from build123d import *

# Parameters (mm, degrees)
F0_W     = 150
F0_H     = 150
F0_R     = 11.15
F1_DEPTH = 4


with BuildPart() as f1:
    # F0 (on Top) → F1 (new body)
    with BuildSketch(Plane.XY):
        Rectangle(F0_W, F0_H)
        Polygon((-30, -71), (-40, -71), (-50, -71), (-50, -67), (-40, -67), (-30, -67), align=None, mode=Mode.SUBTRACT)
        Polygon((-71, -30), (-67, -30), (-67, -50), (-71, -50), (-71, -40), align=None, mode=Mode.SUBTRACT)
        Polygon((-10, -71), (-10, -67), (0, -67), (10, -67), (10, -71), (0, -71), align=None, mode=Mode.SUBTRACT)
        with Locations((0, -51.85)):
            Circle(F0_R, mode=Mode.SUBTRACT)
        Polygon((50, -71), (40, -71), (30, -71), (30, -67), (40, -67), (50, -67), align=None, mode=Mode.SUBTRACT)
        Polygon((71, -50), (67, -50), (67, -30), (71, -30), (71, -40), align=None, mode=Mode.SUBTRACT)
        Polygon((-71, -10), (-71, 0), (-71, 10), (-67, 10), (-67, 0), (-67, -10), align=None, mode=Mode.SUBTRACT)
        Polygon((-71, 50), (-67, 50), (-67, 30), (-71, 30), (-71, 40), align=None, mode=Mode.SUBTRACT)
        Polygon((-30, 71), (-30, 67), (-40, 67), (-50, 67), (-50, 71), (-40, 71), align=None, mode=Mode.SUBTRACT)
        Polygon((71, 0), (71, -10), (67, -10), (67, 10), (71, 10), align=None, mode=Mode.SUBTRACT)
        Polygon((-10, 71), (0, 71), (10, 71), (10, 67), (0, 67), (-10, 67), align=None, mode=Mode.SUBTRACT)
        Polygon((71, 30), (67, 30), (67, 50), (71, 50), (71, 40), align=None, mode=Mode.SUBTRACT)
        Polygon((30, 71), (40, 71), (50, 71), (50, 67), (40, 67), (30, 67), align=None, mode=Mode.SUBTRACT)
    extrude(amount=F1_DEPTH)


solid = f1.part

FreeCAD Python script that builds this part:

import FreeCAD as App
import Part
import Sketcher
from FreeCAD import Vector

doc = App.newDocument("Part")
body = doc.addObject("PartDesign::Body", "Body")

# Sketch on XY plane
sketch1 = body.newObject("Sketcher::SketchObject", "Sketch")
sketch1.AttachmentSupport = (doc.getObject("XY_Plane"), [""])
sketch1.MapMode = "FlatFace"
sketch1.addGeometry(Part.LineSegment(Vector(-75, 75, 0), Vector(-75, -75, 0)), False)
sketch1.addGeometry(Part.LineSegment(Vector(-75, -75, 0), Vector(75, -75, 0)), False)
sketch1.addGeometry(Part.LineSegment(Vector(75, -75, 0), Vector(75, 75, 0)), False)
sketch1.addGeometry(Part.LineSegment(Vector(75, 75, 0), Vector(-75, 75, 0)), False)
sketch1.addGeometry(Part.LineSegment(Vector(-30, -67, 0), Vector(-30, -71, 0)), False)
sketch1.addGeometry(Part.LineSegment(Vector(-30, -71, 0), Vector(-50, -71, 0)), False)
sketch1.addGeometry(Part.LineSegment(Vector(-50, -71, 0), Vector(-50, -67, 0)), False)
sketch1.addGeometry(Part.LineSegment(Vector(-50, -67, 0), Vector(-30, -67, 0)), False)
sketch1.addGeometry(Part.LineSegment(Vector(-71, -50, 0), Vector(-71, -30, 0)), False)
sketch1.addGeometry(Part.LineSegment(Vector(-71, -30, 0), Vector(-67, -30, 0)), False)
sketch1.addGeometry(Part.LineSegment(Vector(-67, -30, 0), Vector(-67, -50, 0)), False)
sketch1.addGeometry(Part.LineSegment(Vector(-67, -50, 0), Vector(-71, -50, 0)), False)
sketch1.addGeometry(Part.LineSegment(Vector(10, -71, 0), Vector(-10, -71, 0)), False)
sketch1.addGeometry(Part.LineSegment(Vector(-10, -71, 0), Vector(-10, -67, 0)), False)
sketch1.addGeometry(Part.LineSegment(Vector(-10, -67, 0), Vector(10, -67, 0)), False)
sketch1.addGeometry(Part.LineSegment(Vector(10, -67, 0), Vector(10, -71, 0)), False)
sketch1.addGeometry(Part.Circle(Vector(0, -51.9, 0), Vector(0, 0, 1), 11.2), False)
sketch1.addGeometry(Part.LineSegment(Vector(50, -67, 0), Vector(50, -71, 0)), False)
sketch1.addGeometry(Part.LineSegment(Vector(50, -71, 0), Vector(30, -71, 0)), False)
sketch1.addGeometry(Part.LineSegment(Vector(30, -71, 0), Vector(30, -67, 0)), False)
sketch1.addGeometry(Part.LineSegment(Vector(30, -67, 0), Vector(50, -67, 0)), False)
sketch1.addGeometry(Part.LineSegment(Vector(71, -30, 0), Vector(71, -50, 0)), False)
sketch1.addGeometry(Part.LineSegment(Vector(71, -50, 0), Vector(67, -50, 0)), False)
sketch1.addGeometry(Part.LineSegment(Vector(67, -50, 0), Vector(67, -30, 0)), False)
sketch1.addGeometry(Part.LineSegment(Vector(67, -30, 0), Vector(71, -30, 0)), False)
sketch1.addGeometry(Part.LineSegment(Vector(-67, -10, 0), Vector(-71, -10, 0)), False)
sketch1.addGeometry(Part.LineSegment(Vector(-71, -10, 0), Vector(-71, 10, 0)), False)
sketch1.addGeometry(Part.LineSegment(Vector(-71, 10, 0), Vector(-67, 10, 0)), False)
sketch1.addGeometry(Part.LineSegment(Vector(-67, 10, 0), Vector(-67, -10, 0)), False)
sketch1.addGeometry(Part.LineSegment(Vector(-71, 30, 0), Vector(-71, 50, 0)), False)
sketch1.addGeometry(Part.LineSegment(Vector(-71, 50, 0), Vector(-67, 50, 0)), False)
sketch1.addGeometry(Part.LineSegment(Vector(-67, 50, 0), Vector(-67, 30, 0)), False)
sketch1.addGeometry(Part.LineSegment(Vector(-67, 30, 0), Vector(-71, 30, 0)), False)
sketch1.addGeometry(Part.LineSegment(Vector(-50, 71, 0), Vector(-30, 71, 0)), False)
sketch1.addGeometry(Part.LineSegment(Vector(-30, 71, 0), Vector(-30, 67, 0)), False)
sketch1.addGeometry(Part.LineSegment(Vector(-30, 67, 0), Vector(-50, 67, 0)), False)
sketch1.addGeometry(Part.LineSegment(Vector(-50, 67, 0), Vector(-50, 71, 0)), False)
sketch1.addGeometry(Part.LineSegment(Vector(71, 10, 0), Vector(71, -10, 0)), False)
sketch1.addGeometry(Part.LineSegment(Vector(71, -10, 0), Vector(67, -10, 0)), False)
sketch1.addGeometry(Part.LineSegment(Vector(67, -10, 0), Vector(67, 10, 0)), False)
sketch1.addGeometry(Part.LineSegment(Vector(67, 10, 0), Vector(71, 10, 0)), False)
sketch1.addGeometry(Part.LineSegment(Vector(-10, 67, 0), Vector(-10, 71, 0)), False)
sketch1.addGeometry(Part.LineSegment(Vector(-10, 71, 0), Vector(10, 71, 0)), False)
sketch1.addGeometry(Part.LineSegment(Vector(10, 71, 0), Vector(10, 67, 0)), False)
sketch1.addGeometry(Part.LineSegment(Vector(10, 67, 0), Vector(-10, 67, 0)), False)
sketch1.addGeometry(Part.LineSegment(Vector(71, 50, 0), Vector(71, 30, 0)), False)
sketch1.addGeometry(Part.LineSegment(Vector(71, 30, 0), Vector(67, 30, 0)), False)
sketch1.addGeometry(Part.LineSegment(Vector(67, 30, 0), Vector(67, 50, 0)), False)
sketch1.addGeometry(Part.LineSegment(Vector(67, 50, 0), Vector(71, 50, 0)), False)
sketch1.addGeometry(Part.LineSegment(Vector(30, 67, 0), Vector(30, 71, 0)), False)
sketch1.addGeometry(Part.LineSegment(Vector(30, 71, 0), Vector(50, 71, 0)), False)
sketch1.addGeometry(Part.LineSegment(Vector(50, 71, 0), Vector(50, 67, 0)), False)
sketch1.addGeometry(Part.LineSegment(Vector(50, 67, 0), Vector(30, 67, 0)), False)
sketch1.addConstraint(Sketcher.Constraint("Coincident", 0, 2, 1, 1))
sketch1.addConstraint(Sketcher.Constraint("Coincident", 1, 2, 2, 1))
sketch1.addConstraint(Sketcher.Constraint("Coincident", 2, 2, 3, 1))
sketch1.addConstraint(Sketcher.Constraint("Coincident", 3, 2, 0, 1))
sketch1.addConstraint(Sketcher.Constraint("Coincident", 4, 2, 5, 1))
sketch1.addConstraint(Sketcher.Constraint("Coincident", 5, 2, 6, 1))
sketch1.addConstraint(Sketcher.Constraint("Coincident", 6, 2, 7, 1))
sketch1.addConstraint(Sketcher.Constraint("Coincident", 7, 2, 4, 1))
sketch1.addConstraint(Sketcher.Constraint("Coincident", 8, 2, 9, 1))
sketch1.addConstraint(Sketcher.Constraint("Coincident", 9, 2, 10, 1))
sketch1.addConstraint(Sketcher.Constraint("Coincident", 10, 2, 11, 1))
sketch1.addConstraint(Sketcher.Constraint("Coincident", 11, 2, 8, 1))
sketch1.addConstraint(Sketcher.Constraint("Coincident", 12, 2, 13, 1))
sketch1.addConstraint(Sketcher.Constraint("Coincident", 13, 2, 14, 1))
sketch1.addConstraint(Sketcher.Constraint("Coincident", 14, 2, 15, 1))
sketch1.addConstraint(Sketcher.Constraint("Coincident", 15, 2, 12, 1))
sketch1.addConstraint(Sketcher.Constraint("Coincident", 17, 2, 18, 1))
sketch1.addConstraint(Sketcher.Constraint("Coincident", 18, 2, 19, 1))
sketch1.addConstraint(Sketcher.Constraint("Coincident", 19, 2, 20, 1))
sketch1.addConstraint(Sketcher.Constraint("Coincident", 20, 2, 17, 1))
sketch1.addConstraint(Sketcher.Constraint("Coincident", 21, 2, 22, 1))
sketch1.addConstraint(Sketcher.Constraint("Coincident", 22, 2, 23, 1))
sketch1.addConstraint(Sketcher.Constraint("Coincident", 23, 2, 24, 1))
sketch1.addConstraint(Sketcher.Constraint("Coincident", 24, 2, 21, 1))
sketch1.addConstraint(Sketcher.Constraint("Coincident", 25, 2, 26, 1))
sketch1.addConstraint(Sketcher.Constraint("Coincident", 26, 2, 27, 1))
sketch1.addConstraint(Sketcher.Constraint("Coincident", 27, 2, 28, 1))
sketch1.addConstraint(Sketcher.Constraint("Coincident", 28, 2, 25, 1))
sketch1.addConstraint(Sketcher.Constraint("Coincident", 29, 2, 30, 1))
sketch1.addConstraint(Sketcher.Constraint("Coincident", 30, 2, 31, 1))
sketch1.addConstraint(Sketcher.Constraint("Coincident", 31, 2, 32, 1))
sketch1.addConstraint(Sketcher.Constraint("Coincident", 32, 2, 29, 1))
sketch1.addConstraint(Sketcher.Constraint("Coincident", 33, 2, 34, 1))
sketch1.addConstraint(Sketcher.Constraint("Coincident", 34, 2, 35, 1))
sketch1.addConstraint(Sketcher.Constraint("Coincident", 35, 2, 36, 1))
sketch1.addConstraint(Sketcher.Constraint("Coincident", 36, 2, 33, 1))
sketch1.addConstraint(Sketcher.Constraint("Coincident", 37, 2, 38, 1))
sketch1.addConstraint(Sketcher.Constraint("Coincident", 38, 2, 39, 1))
sketch1.addConstraint(Sketcher.Constraint("Coincident", 39, 2, 40, 1))
sketch1.addConstraint(Sketcher.Constraint("Coincident", 40, 2, 37, 1))
sketch1.addConstraint(Sketcher.Constraint("Coincident", 41, 2, 42, 1))
sketch1.addConstraint(Sketcher.Constraint("Coincident", 42, 2, 43, 1))
sketch1.addConstraint(Sketcher.Constraint("Coincident", 43, 2, 44, 1))
sketch1.addConstraint(Sketcher.Constraint("Coincident", 44, 2, 41, 1))
sketch1.addConstraint(Sketcher.Constraint("Coincident", 45, 2, 46, 1))
sketch1.addConstraint(Sketcher.Constraint("Coincident", 46, 2, 47, 1))
sketch1.addConstraint(Sketcher.Constraint("Coincident", 47, 2, 48, 1))
sketch1.addConstraint(Sketcher.Constraint("Coincident", 48, 2, 45, 1))
sketch1.addConstraint(Sketcher.Constraint("Coincident", 49, 2, 50, 1))
sketch1.addConstraint(Sketcher.Constraint("Coincident", 50, 2, 51, 1))
sketch1.addConstraint(Sketcher.Constraint("Coincident", 51, 2, 52, 1))
sketch1.addConstraint(Sketcher.Constraint("Coincident", 52, 2, 49, 1))
sketch1.addConstraint(Sketcher.Constraint("Vertical", 0))
sketch1.addConstraint(Sketcher.Constraint("Horizontal", 1))
sketch1.addConstraint(Sketcher.Constraint("Vertical", 2))
sketch1.addConstraint(Sketcher.Constraint("Horizontal", 3))
sketch1.addConstraint(Sketcher.Constraint("Vertical", 4))
sketch1.addConstraint(Sketcher.Constraint("Horizontal", 5))
sketch1.addConstraint(Sketcher.Constraint("Vertical", 6))
sketch1.addConstraint(Sketcher.Constraint("Horizontal", 7))
sketch1.addConstraint(Sketcher.Constraint("Vertical", 8))
sketch1.addConstraint(Sketcher.Constraint("Horizontal", 9))
sketch1.addConstraint(Sketcher.Constraint("Vertical", 10))
sketch1.addConstraint(Sketcher.Constraint("Horizontal", 11))
sketch1.addConstraint(Sketcher.Constraint("Horizontal", 12))
sketch1.addConstraint(Sketcher.Constraint("Vertical", 13))
sketch1.addConstraint(Sketcher.Constraint("Horizontal", 14))
sketch1.addConstraint(Sketcher.Constraint("Vertical", 15))
sketch1.addConstraint(Sketcher.Constraint("Vertical", 17))
sketch1.addConstraint(Sketcher.Constraint("Horizontal", 18))
sketch1.addConstraint(Sketcher.Constraint("Vertical", 19))
sketch1.addConstraint(Sketcher.Constraint("Horizontal", 20))
sketch1.addConstraint(Sketcher.Constraint("Vertical", 21))
sketch1.addConstraint(Sketcher.Constraint("Horizontal", 22))
sketch1.addConstraint(Sketcher.Constraint("Vertical", 23))
sketch1.addConstraint(Sketcher.Constraint("Horizontal", 24))
sketch1.addConstraint(Sketcher.Constraint("Horizontal", 25))
sketch1.addConstraint(Sketcher.Constraint("Vertical", 26))
sketch1.addConstraint(Sketcher.Constraint("Horizontal", 27))
sketch1.addConstraint(Sketcher.Constraint("Vertical", 28))
sketch1.addConstraint(Sketcher.Constraint("Vertical", 29))
sketch1.addConstraint(Sketcher.Constraint("Horizontal", 30))
sketch1.addConstraint(Sketcher.Constraint("Vertical", 31))
sketch1.addConstraint(Sketcher.Constraint("Horizontal", 32))
sketch1.addConstraint(Sketcher.Constraint("Horizontal", 33))
sketch1.addConstraint(Sketcher.Constraint("Vertical", 34))
sketch1.addConstraint(Sketcher.Constraint("Horizontal", 35))
sketch1.addConstraint(Sketcher.Constraint("Vertical", 36))
sketch1.addConstraint(Sketcher.Constraint("Vertical", 37))
sketch1.addConstraint(Sketcher.Constraint("Horizontal", 38))
sketch1.addConstraint(Sketcher.Constraint("Vertical", 39))
sketch1.addConstraint(Sketcher.Constraint("Horizontal", 40))
sketch1.addConstraint(Sketcher.Constraint("Vertical", 41))
sketch1.addConstraint(Sketcher.Constraint("Horizontal", 42))
sketch1.addConstraint(Sketcher.Constraint("Vertical", 43))
sketch1.addConstraint(Sketcher.Constraint("Horizontal", 44))
sketch1.addConstraint(Sketcher.Constraint("Vertical", 45))
sketch1.addConstraint(Sketcher.Constraint("Horizontal", 46))
sketch1.addConstraint(Sketcher.Constraint("Vertical", 47))
sketch1.addConstraint(Sketcher.Constraint("Horizontal", 48))
sketch1.addConstraint(Sketcher.Constraint("Vertical", 49))
sketch1.addConstraint(Sketcher.Constraint("Horizontal", 50))
sketch1.addConstraint(Sketcher.Constraint("Vertical", 51))
sketch1.addConstraint(Sketcher.Constraint("Horizontal", 52))
sketch1.addConstraint(Sketcher.Constraint("Symmetric", 0, 2, 2, 2, -1, 1))
sketch1.addConstraint(Sketcher.Constraint("Symmetric", 21, 2, 29, 2, -1, 1))
sketch1.addConstraint(Sketcher.Constraint("Symmetric", 23, 2, 31, 2, -1, 1))
sketch1.addConstraint(Sketcher.Constraint("Symmetric", 18, 2, 33, 2, -1, 1))
sketch1.addConstraint(Sketcher.Constraint("Symmetric", 20, 2, 35, 2, -1, 1))
sketch1.addConstraint(Sketcher.Constraint("Symmetric", 26, 2, 37, 2, -1, 1))
sketch1.addConstraint(Sketcher.Constraint("Symmetric", 28, 2, 39, 2, -1, 1))
sketch1.addConstraint(Sketcher.Constraint("Symmetric", 15, 2, 41, 2, -1, 1))
sketch1.addConstraint(Sketcher.Constraint("Symmetric", 13, 2, 43, 2, -1, 1))
sketch1.addConstraint(Sketcher.Constraint("Symmetric", 8, 2, 45, 2, -1, 1))
sketch1.addConstraint(Sketcher.Constraint("Symmetric", 10, 2, 47, 2, -1, 1))
sketch1.addConstraint(Sketcher.Constraint("Symmetric", 4, 2, 49, 2, -1, 1))
sketch1.addConstraint(Sketcher.Constraint("Symmetric", 6, 2, 51, 2, -1, 1))
sketch1.addConstraint(Sketcher.Constraint("Symmetric", 5, 2, 17, 2, -2))
sketch1.addConstraint(Sketcher.Constraint("Symmetric", 7, 2, 19, 2, -2))
sketch1.addConstraint(Sketcher.Constraint("Symmetric", 11, 2, 21, 2, -2))
sketch1.addConstraint(Sketcher.Constraint("Symmetric", 9, 2, 23, 2, -2))
sketch1.addConstraint(Sketcher.Constraint("PointOnObject", 16, 3, -2))
sketch1.addConstraint(Sketcher.Constraint("Horizontal", 5, 2, 12, 2))
sketch1.addConstraint(Sketcher.Constraint("Horizontal", 7, 2, 13, 2))
sketch1.addConstraint(Sketcher.Constraint("Horizontal", 28, 2, 37, 2))
sketch1.addConstraint(Sketcher.Constraint("Vertical", 11, 2, 25, 2))
sketch1.addConstraint(Sketcher.Constraint("Vertical", 10, 2, 27, 2))
sketch1.addConstraint(Sketcher.Constraint("Vertical", 13, 2, 41, 2))
sketch1.addConstraint(Sketcher.Constraint("Equal", 7, 12))
sketch1.addConstraint(Sketcher.Constraint("Equal", 3, 0))
sketch1.addConstraint(Sketcher.Constraint("Equal", 48, 4))
sketch1.addConstraint(Sketcher.Constraint("Equal", 52, 8))
sketch1.addConstraint(Sketcher.Constraint("Equal", 23, 26))
sketch1.addConstraint(Sketcher.Constraint("Diameter", 16, 22.3))
sketch1.addConstraint(Sketcher.Constraint("DistanceX", 1, 1, 1, 2, 150.0))
sketch1.addConstraint(Sketcher.Constraint("DistanceX", 5, 2, 5, 1, 20.0))
sketch1.addConstraint(Sketcher.Constraint("DistanceX", 9, 1, 9, 2, 4.0))
sketch1.addConstraint(Sketcher.Constraint("DistanceX", 4, 2, -1, 1, 30.0))
sketch1.addConstraint(Sketcher.Constraint("DistanceY", 4, 2, -1, 1, 71.0))
sketch1.addConstraint(Sketcher.Constraint("DistanceX", 8, 2, -1, 1, 71.0))
sketch1.addConstraint(Sketcher.Constraint("DistanceY", 8, 2, -1, 1, 30.0))
sketch1.addConstraint(Sketcher.Constraint("DistanceY", 16, 3, -1, 1, 51.85))
pad1 = body.newObject("PartDesign::Pad", "Pad")
pad1.Profile = sketch1
pad1.Length = 4

doc.recompute()
